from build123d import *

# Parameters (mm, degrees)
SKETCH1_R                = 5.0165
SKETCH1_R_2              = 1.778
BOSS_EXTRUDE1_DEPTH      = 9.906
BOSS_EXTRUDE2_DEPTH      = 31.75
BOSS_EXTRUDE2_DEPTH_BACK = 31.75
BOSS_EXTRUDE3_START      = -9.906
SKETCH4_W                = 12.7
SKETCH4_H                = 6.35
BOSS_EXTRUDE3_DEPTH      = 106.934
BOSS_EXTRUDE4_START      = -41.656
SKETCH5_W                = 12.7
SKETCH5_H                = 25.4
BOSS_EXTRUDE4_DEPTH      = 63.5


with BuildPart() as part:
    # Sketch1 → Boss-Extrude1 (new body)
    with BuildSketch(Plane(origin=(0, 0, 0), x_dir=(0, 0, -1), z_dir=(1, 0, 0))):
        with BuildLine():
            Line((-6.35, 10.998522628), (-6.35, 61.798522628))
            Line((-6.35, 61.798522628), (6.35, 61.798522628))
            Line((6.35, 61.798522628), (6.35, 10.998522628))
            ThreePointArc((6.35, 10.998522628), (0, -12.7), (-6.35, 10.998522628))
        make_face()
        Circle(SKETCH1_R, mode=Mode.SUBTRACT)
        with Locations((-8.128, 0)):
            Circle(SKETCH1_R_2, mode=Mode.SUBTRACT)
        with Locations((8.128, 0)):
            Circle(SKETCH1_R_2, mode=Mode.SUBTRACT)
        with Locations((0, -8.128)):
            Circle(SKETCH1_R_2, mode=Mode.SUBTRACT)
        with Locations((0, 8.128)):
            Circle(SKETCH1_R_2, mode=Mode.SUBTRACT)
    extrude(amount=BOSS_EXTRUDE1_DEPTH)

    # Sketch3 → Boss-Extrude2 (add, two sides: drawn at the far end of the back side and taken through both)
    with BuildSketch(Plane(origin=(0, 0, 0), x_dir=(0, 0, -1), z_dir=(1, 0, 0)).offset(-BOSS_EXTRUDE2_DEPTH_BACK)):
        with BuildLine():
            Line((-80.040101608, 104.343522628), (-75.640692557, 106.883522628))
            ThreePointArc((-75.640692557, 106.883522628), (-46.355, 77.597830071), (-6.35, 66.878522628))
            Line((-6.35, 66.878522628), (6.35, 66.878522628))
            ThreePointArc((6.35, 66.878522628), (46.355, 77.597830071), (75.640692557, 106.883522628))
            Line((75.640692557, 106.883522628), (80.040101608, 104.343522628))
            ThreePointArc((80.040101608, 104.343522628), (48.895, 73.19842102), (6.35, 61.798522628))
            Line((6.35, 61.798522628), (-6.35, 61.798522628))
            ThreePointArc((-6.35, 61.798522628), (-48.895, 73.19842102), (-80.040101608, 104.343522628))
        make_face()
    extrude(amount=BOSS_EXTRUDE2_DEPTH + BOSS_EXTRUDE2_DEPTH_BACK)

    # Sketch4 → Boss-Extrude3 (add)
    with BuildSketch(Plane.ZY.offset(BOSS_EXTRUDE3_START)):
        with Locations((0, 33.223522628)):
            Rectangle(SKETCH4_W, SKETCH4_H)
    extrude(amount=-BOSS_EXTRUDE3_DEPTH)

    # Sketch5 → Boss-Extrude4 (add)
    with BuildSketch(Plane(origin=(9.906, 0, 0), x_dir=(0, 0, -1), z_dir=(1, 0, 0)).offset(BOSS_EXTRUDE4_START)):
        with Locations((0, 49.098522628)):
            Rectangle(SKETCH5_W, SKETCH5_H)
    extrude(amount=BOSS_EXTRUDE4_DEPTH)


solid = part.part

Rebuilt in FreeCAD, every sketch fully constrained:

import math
import FreeCAD as App
import Part
import Sketcher
Q = App.Units.Quantity

doc = App.newDocument("Part")
body = doc.addObject("PartDesign::Body", "Body")

sketch1 = body.newObject("Sketcher::SketchObject", "Sketch")
sketch1.AttachmentSupport = (doc.getObject("YZ_Plane"), [""])
sketch1.MapMode = "FlatFace"
sketch1.addGeometry(Part.LineSegment(App.Vector(61.8, 6.3, 0), App.Vector(11, 6.3, 0)), False)
sketch1.addGeometry(Part.ArcOfCircle(Part.Circle(App.Vector(0, 0, 0), App.Vector(0, 0, 1), 12.7), math.radians(30), math.radians(330)), False)
sketch1.addGeometry(Part.LineSegment(App.Vector(11, -6.3, 0), App.Vector(61.8, -6.3, 0)), False)
sketch1.addGeometry(Part.LineSegment(App.Vector(61.8, -6.3, 0), App.Vector(61.8, 6.3, 0)), False)
sketch1.addGeometry(Part.Circle(App.Vector(-8.1, 0, 0), App.Vector(0, 0, 1), 1.8), False)
sketch1.addGeometry(Part.Circle(App.Vector(0, -8.1, 0), App.Vector(0, 0, 1), 1.8), False)
sketch1.addGeometry(Part.Circle(App.Vector(0, 0, 0), App.Vector(0, 0, 1), 5), False)
sketch1.addGeometry(Part.Circle(App.Vector(0, 8.1, 0), App.Vector(0, 0, 1), 1.8), False)
sketch1.addGeometry(Part.Circle(App.Vector(8.1, 0, 0), App.Vector(0, 0, 1), 1.8), False)
sketch1.addConstraint(Sketcher.Constraint("Coincident", 0, 2, 1, 1))
sketch1.addConstraint(Sketcher.Constraint("Coincident", 1, 2, 2, 1))
sketch1.addConstraint(Sketcher.Constraint("Coincident", 2, 2, 3, 1))
sketch1.addConstraint(Sketcher.Constraint("Coincident", 3, 2, 0, 1))
sketch1.addConstraint(Sketcher.Constraint("Horizontal", 0))
sketch1.addConstraint(Sketcher.Constraint("Horizontal", 2))
sketch1.addConstraint(Sketcher.Constraint("Vertical", 3))
sketch1.addConstraint(Sketcher.Constraint("Coincident", 1, 3, -1, 1))
sketch1.addConstraint(Sketcher.Constraint("Coincident", 6, 3, -1, 1))
sketch1.addConstraint(Sketcher.Constraint("Equal", 4, 5))
sketch1.addConstraint(Sketcher.Constraint("Equal", 5, 7))
sketch1.addConstraint(Sketcher.Constraint("Equal", 7, 8))
sketch1.addConstraint(Sketcher.Constraint("Symmetric", 5, 3, 7, 3, -1, 1))
sketch1.addConstraint(Sketcher.Constraint("Symmetric", 4, 3, 8, 3, -1, 1))
sketch1.addConstraint(Sketcher.Constraint("PointOnObject", 4, 3, -1))
sketch1.addConstraint(Sketcher.Constraint("PointOnObject", 5, 3, -2))
sketch1.addConstraint(Sketcher.Constraint("Vertical", 0, 2, 1, 2))
sketch1.addConstraint(Sketcher.Constraint("Radius", 1, Q("0.5 in")))
sketch1.addConstraint(Sketcher.Constraint("Diameter", 4, Q("0.14 in")))
sketch1.addConstraint(Sketcher.Constraint("DistanceX", 0, 2, 0, 1, Q("2 in")))
sketch1.addConstraint(Sketcher.Constraint("Diameter", 6, Q("0.395 in")))
sketch1.addConstraint(Sketcher.Constraint("DistanceY", 3, 1, 3, 2, Q("0.5 in")))
sketch1.addConstraint(Sketcher.Constraint("DistanceX", 4, 3, -1, 1, Q("0.32 in")))
sketch1.addConstraint(Sketcher.Constraint("DistanceY", 5, 3, -1, 1, Q("0.32 in")))
pad1 = body.newObject("PartDesign::Pad", "Pad")
pad1.Profile = sketch1
pad1.Length = Q("0.39 in")

sketch2 = body.newObject("Sketcher::SketchObject", "Sketch001")
sketch2.AttachmentSupport = (doc.getObject("YZ_Plane"), [""])
sketch2.MapMode = "FlatFace"
sketch2.addGeometry(Part.LineSegment(App.Vector(107, 76, 0), App.Vector(104, 80, 0)), False)
sketch2.addGeometry(Part.ArcOfCircle(Part.Circle(App.Vector(147, 6, 0), App.Vector(0, 0, 1), 85), math.radians(120), math.radians(180)), False)
sketch2.addGeometry(Part.LineSegment(App.Vector(62, 6, 0), App.Vector(62, -6, 0)), False)
sketch2.addGeometry(Part.ArcOfCircle(Part.Circle(App.Vector(147, -6, 0), App.Vector(0, 0, 1), 85), math.radians(180), math.radians(240)), False)
sketch2.addGeometry(Part.LineSegment(App.Vector(104, -80, 0), App.Vector(107, -76, 0)), False)
sketch2.addGeometry(Part.ArcOfCircle(Part.Circle(App.Vector(147, -6, 0), App.Vector(0, 0, 1), 80), math.radians(180), math.radians(240)), False)
sketch2.addGeometry(Part.LineSegment(App.Vector(67, -6, 0), App.Vector(67, 6, 0)), False)
sketch2.addGeometry(Part.ArcOfCircle(Part.Circle(App.Vector(147, 6, 0), App.Vector(0, 0, 1), 80), math.radians(120), math.radians(180)), False)
sketch2.addConstraint(Sketcher.Constraint("Coincident", 0, 2, 1, 1))
sketch2.addConstraint(Sketcher.Constraint("Tangent", 1, 2, 2, 1))
sketch2.addConstraint(Sketcher.Constraint("Tangent", 2, 2, 3, 1))
sketch2.addConstraint(Sketcher.Constraint("Coincident", 3, 2, 4, 1))
sketch2.addConstraint(Sketcher.Constraint("Coincident", 4, 2, 5, 2))
sketch2.addConstraint(Sketcher.Constraint("Tangent", 5, 1, 6, 1))
sketch2.addConstraint(Sketcher.Constraint("Tangent", 6, 2, 7, 2))
sketch2.addConstraint(Sketcher.Constraint("Coincident", 7, 1, 0, 1))
sketch2.addConstraint(Sketcher.Constraint("Vertical", 2))
sketch2.addConstraint(Sketcher.Constraint("Vertical", 6))
sketch2.addConstraint(Sketcher.Constraint("Coincident", 5, 3, 3, 3))
sketch2.addConstraint(Sketcher.Constraint("Coincident", 7, 3, 1, 3))
sketch2.addConstraint(Sketcher.Constraint("Equal", 1, 3))
sketch2.addConstraint(Sketcher.Constraint("Symmetric", 0, 2, 3, 2, -1))
sketch2.addConstraint(Sketcher.Constraint("Vertical", 4, 2, 7, 1))
sketch2.addConstraint(Sketcher.Constraint("Radius", 1, Q("3.35 in")))
sketch2.addConstraint(Sketcher.Constraint("Radius", 5, Q("3.15 in")))
sketch2.addConstraint(Sketcher.Constraint("DistanceY", 2, 2, 2, 1, Q("0.5 in")))
sketch2.addConstraint(Sketcher.Constraint("Angle", 0, Q("120 deg")))
sketch2.addConstraint(Sketcher.Constraint("DistanceX", 0, 2, 1, 3, Q("1.675 in")))
sketch2.addConstraint(Sketcher.Constraint("DistanceX", -1, 1, 1, 3, Q("146.888523 mm")))
pad2 = body.newObject("PartDesign::Pad", "Pad001")
pad2.Profile = sketch2
pad2.Type = "TwoLengths"
pad2.Length = Q("1.25 in")
pad2.Length2 = Q("1.25 in")

sketch3 = body.newObject("Sketcher::SketchObject", "Sketch002")
sketch3.AttachmentSupport = (doc.getObject("YZ_Plane"), [""])
sketch3.MapMode = "FlatFace"
sketch3.AttachmentOffset = App.Placement(App.Vector(0, 0, 0.39 * 25.4), App.Rotation())
sketch3.addGeometry(Part.LineSegment(App.Vector(36, -6, 0), App.Vector(30, -6, 0)), False)
sketch3.addGeometry(Part.LineSegment(App.Vector(30, -6, 0), App.Vector(30, 6, 0)), False)
sketch3.addGeometry(Part.LineSegment(App.Vector(30, 6, 0), App.Vector(36, 6, 0)), False)
sketch3.addGeometry(Part.LineSegment(App.Vector(36, 6, 0), App.Vector(36, -6, 0)), False)
sketch3.addConstraint(Sketcher.Constraint("Coincident", 0, 2, 1, 1))
sketch3.addConstraint(Sketcher.Constraint("Coincident", 1, 2, 2, 1))
sketch3.addConstraint(Sketcher.Constraint("Coincident", 2, 2, 3, 1))
sketch3.addConstraint(Sketcher.Constraint("Coincident", 3, 2, 0, 1))
sketch3.addConstraint(Sketcher.Constraint("Horizontal", 0))
sketch3.addConstraint(Sketcher.Constraint("Vertical", 1))
sketch3.addConstraint(Sketcher.Constraint("Horizontal", 2))
sketch3.addConstraint(Sketcher.Constraint("Vertical", 3))
sketch3.addConstraint(Sketcher.Constraint("DistanceY", 1, 1, 1, 2, Q("0.5 in")))
sketch3.addConstraint(Sketcher.Constraint("DistanceX", 0, 2, 0, 1, Q("0.25 in")))
sketch3.addConstraint(Sketcher.Constraint("DistanceY", 0, 2, -1, 1, Q("0.25 in")))
sketch3.addConstraint(Sketcher.Constraint("DistanceX", -1, 1, 0, 2, Q("30.048523 mm")))
pad3 = body.newObject("PartDesign::Pad", "Pad002")
pad3.Profile = sketch3
pad3.Length = Q("4.21 in")

sketch4 = body.newObject("Sketcher::SketchObject", "Sketch003")
sketch4.AttachmentSupport = (doc.getObject("YZ_Plane"), [""])
sketch4.MapMode = "FlatFace"
sketch4.AttachmentOffset = App.Placement(App.Vector(0, 0, -1.25 * 25.4), App.Rotation())
sketch4.addGeometry(Part.LineSegment(App.Vector(62, 6, 0), App.Vector(36, 6, 0)), False)
sketch4.addGeometry(Part.LineSegment(App.Vector(36, 6, 0), App.Vector(36, -6, 0)), False)
sketch4.addGeometry(Part.LineSegment(App.Vector(36, -6, 0), App.Vector(62, -6, 0)), False)
sketch4.addGeometry(Part.LineSegment(App.Vector(62, -6, 0), App.Vector(62, 6, 0)), False)
sketch4.addConstraint(Sketcher.Constraint("Coincident", 0, 2, 1, 1))
sketch4.addConstraint(Sketcher.Constraint("Coincident", 1, 2, 2, 1))
sketch4.addConstraint(Sketcher.Constraint("Coincident", 2, 2, 3, 1))
sketch4.addConstraint(Sketcher.Constraint("Coincident", 3, 2, 0, 1))
sketch4.addConstraint(Sketcher.Constraint("Horizontal", 0))
sketch4.addConstraint(Sketcher.Constraint("Vertical", 1))
sketch4.addConstraint(Sketcher.Constraint("Horizontal", 2))
sketch4.addConstraint(Sketcher.Constraint("Vertical", 3))
sketch4.addConstraint(Sketcher.Constraint("DistanceX", 0, 2, 0, 1, Q("1 in")))
sketch4.addConstraint(Sketcher.Constraint("DistanceY", 1, 2, 1, 1, Q("0.5 in")))
sketch4.addConstraint(Sketcher.Constraint("DistanceY", -1, 1, 0, 2, Q("0.25 in")))
sketch4.addConstraint(Sketcher.Constraint("DistanceX", -1, 1, 0, 2, Q("36.398523 mm")))
pad4 = body.newObject("PartDesign::Pad", "Pad003")
pad4.Profile = sketch4
pad4.Length = Q("2.5 in")

doc.recompute()
